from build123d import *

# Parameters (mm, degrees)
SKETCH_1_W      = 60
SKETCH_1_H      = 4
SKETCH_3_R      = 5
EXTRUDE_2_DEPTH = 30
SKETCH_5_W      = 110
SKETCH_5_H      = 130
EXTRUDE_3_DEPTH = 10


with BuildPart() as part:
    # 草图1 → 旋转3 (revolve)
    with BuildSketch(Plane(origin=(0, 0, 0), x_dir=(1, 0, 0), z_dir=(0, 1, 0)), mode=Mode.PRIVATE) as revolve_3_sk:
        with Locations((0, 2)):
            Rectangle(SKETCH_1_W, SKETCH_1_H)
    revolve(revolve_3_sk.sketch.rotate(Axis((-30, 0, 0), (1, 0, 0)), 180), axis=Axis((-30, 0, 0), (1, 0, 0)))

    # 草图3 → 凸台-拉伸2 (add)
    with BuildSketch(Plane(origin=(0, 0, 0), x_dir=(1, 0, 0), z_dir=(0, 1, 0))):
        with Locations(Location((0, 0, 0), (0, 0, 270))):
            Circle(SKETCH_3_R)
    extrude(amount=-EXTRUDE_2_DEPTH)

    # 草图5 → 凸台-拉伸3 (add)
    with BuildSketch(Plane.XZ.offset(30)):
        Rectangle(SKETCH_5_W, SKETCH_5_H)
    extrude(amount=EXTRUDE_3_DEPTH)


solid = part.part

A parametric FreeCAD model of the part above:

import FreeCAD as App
import Part
import Sketcher

doc = App.newDocument("Part")
body = doc.addObject("PartDesign::Body", "Body")

sketch1 = body.newObject("Sketcher::SketchObject", "Sketch")
sketch1.AttachmentSupport = (doc.getObject("XZ_Plane"), [""])
sketch1.MapMode = "FlatFace"
sketch1.addGeometry([
    Part.LineSegment(App.Vector(-30, -4, 0), App.Vector(-30, 0, 0)),
    Part.LineSegment(App.Vector(-30, 0, 0), App.Vector(30, 0, 0)),
    Part.LineSegment(App.Vector(30, 0, 0), App.Vector(30, -4, 0)),
    Part.LineSegment(App.Vector(30, -4, 0), App.Vector(-30, -4, 0)),
], False)
sketch1.addConstraint([
    Sketcher.Constraint("Coincident", 0, 2, 1, 1),
    Sketcher.Constraint("Coincident", 1, 2, 2, 1),
    Sketcher.Constraint("Coincident", 2, 2, 3, 1),
    Sketcher.Constraint("Coincident", 3, 2, 0, 1),
    Sketcher.Constraint("Vertical", 0),
    Sketcher.Constraint("Horizontal", 1),
    Sketcher.Constraint("Vertical", 2),
    Sketcher.Constraint("Horizontal", 3),
    Sketcher.Constraint("Symmetric", 0, 2, 1, 2, -1, 1),
    Sketcher.Constraint("DistanceX", 1, 1, 1, 2, 60.0),
    Sketcher.Constraint("DistanceY", 0, 1, 0, 2, 4.0),
])
revolution = body.newObject("PartDesign::Revolution", "Revolution")
revolution.Profile = sketch1
revolution.ReferenceAxis = (sketch1, ["H_Axis"])
revolution.Angle = 360

sketch2 = body.newObject("Sketcher::SketchObject", "Sketch001")
sketch2.AttachmentSupport = (doc.getObject("XZ_Plane"), [""])
sketch2.MapMode = "FlatFace"
sketch2.addGeometry(Part.Circle(App.Vector(0, 0, 0), App.Vector(0, 0, 1), 5), False)
sketch2.addConstraint([
    Sketcher.Constraint("Coincident", 0, 3, -1, 1),
    Sketcher.Constraint("Diameter", 0, 10.0),
])
pad1 = body.newObject("PartDesign::Pad", "Pad")
pad1.Profile = sketch2
pad1.Length = 30

sketch3 = body.newObject("Sketcher::SketchObject", "Sketch002")
sketch3.AttachmentSupport = (doc.getObject("XZ_Plane"), [""])
sketch3.MapMode = "FlatFace"
sketch3.AttachmentOffset = App.Placement(App.Vector(0, 0, 30), App.Rotation())
sketch3.addGeometry([
    Part.LineSegment(App.Vector(-55, 65, 0), App.Vector(-55, -65, 0)),
    Part.LineSegment(App.Vector(-55, -65, 0), App.Vector(55, -65, 0)),
    Part.LineSegment(App.Vector(55, -65, 0), App.Vector(55, 65, 0)),
    Part.LineSegment(App.Vector(55, 65, 0), App.Vector(-55, 65, 0)),
], False)
sketch3.addConstraint([
    Sketcher.Constraint("Coincident", 0, 2, 1, 1),
    Sketcher.Constraint("Coincident", 1, 2, 2, 1),
    Sketcher.Constraint("Coincident", 2, 2, 3, 1),
    Sketcher.Constraint("Coincident", 3, 2, 0, 1),
    Sketcher.Constraint("Vertical", 0),
    Sketcher.Constraint("Horizontal", 1),
    Sketcher.Constraint("Vertical", 2),
    Sketcher.Constraint("Horizontal", 3),
    Sketcher.Constraint("Symmetric", 0, 2, 2, 2, -1, 1),
    Sketcher.Constraint("DistanceX", 1, 1, 1, 2, 110.0),
    Sketcher.Constraint("DistanceY", 0, 2, 0, 1, 130.0),
])
pad2 = body.newObject("PartDesign::Pad", "Pad001")
pad2.Profile = sketch3
pad2.Length = 10

doc.recompute()
